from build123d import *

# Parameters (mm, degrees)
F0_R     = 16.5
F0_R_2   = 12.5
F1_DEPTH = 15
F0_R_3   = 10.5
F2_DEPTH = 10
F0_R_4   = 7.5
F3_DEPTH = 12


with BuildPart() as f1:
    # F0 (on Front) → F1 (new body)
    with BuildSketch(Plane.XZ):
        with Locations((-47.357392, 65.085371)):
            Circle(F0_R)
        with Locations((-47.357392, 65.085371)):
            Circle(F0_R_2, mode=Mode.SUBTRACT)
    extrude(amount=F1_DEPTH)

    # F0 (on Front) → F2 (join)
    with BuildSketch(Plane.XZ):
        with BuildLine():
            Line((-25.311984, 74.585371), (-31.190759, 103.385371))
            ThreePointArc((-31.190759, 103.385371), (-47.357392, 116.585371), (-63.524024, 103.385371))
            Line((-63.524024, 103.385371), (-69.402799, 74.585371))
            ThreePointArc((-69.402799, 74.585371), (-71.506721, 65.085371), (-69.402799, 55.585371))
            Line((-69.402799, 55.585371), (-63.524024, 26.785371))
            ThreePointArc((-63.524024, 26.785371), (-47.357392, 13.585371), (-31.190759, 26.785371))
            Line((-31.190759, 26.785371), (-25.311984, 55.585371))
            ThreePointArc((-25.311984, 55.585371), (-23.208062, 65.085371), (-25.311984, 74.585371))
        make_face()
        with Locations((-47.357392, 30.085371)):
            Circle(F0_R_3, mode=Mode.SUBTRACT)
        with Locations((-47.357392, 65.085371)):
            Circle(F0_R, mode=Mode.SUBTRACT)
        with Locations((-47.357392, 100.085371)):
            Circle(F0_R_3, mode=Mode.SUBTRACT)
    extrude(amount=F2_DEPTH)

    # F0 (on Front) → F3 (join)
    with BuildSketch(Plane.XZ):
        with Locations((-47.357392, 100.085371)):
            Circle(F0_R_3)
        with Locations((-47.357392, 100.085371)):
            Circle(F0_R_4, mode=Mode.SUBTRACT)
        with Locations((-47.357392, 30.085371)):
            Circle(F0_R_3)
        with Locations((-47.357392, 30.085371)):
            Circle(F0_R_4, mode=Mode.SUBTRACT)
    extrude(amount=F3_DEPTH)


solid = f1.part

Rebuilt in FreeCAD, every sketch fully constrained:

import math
import FreeCAD as App
import Part
import Sketcher

V = App.Vector
Q = App.Units.Quantity

doc = App.newDocument("Part")
body = doc.addObject("PartDesign::Body", "Body")

# Sketch on XZ plane
sketch1 = body.newObject("Sketcher::SketchObject", "Sketch")
sketch1.AttachmentSupport = (doc.getObject("XZ_Plane"), [""])
sketch1.MapMode = "FlatFace"
sketch1.addGeometry([
    Part.Circle(V(-47, 65, 0), V(0, 0, 1), 16),
    Part.Circle(V(-47, 65, 0), V(0, 0, 1), 12),
], False)
sketch1.addConstraint([
    Sketcher.Constraint("Coincident", 1, 3, 0, 3),
    Sketcher.Constraint("Diameter", 0, Q("33 mm")),
    Sketcher.Constraint("Diameter", 1, Q("25 mm")),
    Sketcher.Constraint("DistanceX", 0, 3, -1, 1, Q("47.357392 mm")),
    Sketcher.Constraint("DistanceY", -1, 1, 0, 3, Q("65.085371 mm")),
])
pad1 = body.newObject("PartDesign::Pad", "Pad")
pad1.Profile = sketch1
pad1.Length = 15

# Sketch on XZ plane
sketch2 = body.newObject("Sketcher::SketchObject", "Sketch001")
sketch2.AttachmentSupport = (doc.getObject("XZ_Plane"), [""])
sketch2.MapMode = "FlatFace"
sketch2.addGeometry([
    Part.LineSegment(V(-25, 75, 0), V(-31, 103, 0)),  # 0
    Part.ArcOfCircle(Part.Circle(V(-47, 100, 0), V(0, 0, 1), 17), math.radians(12), math.radians(168)),  # 1
    Part.LineSegment(V(-64, 103, 0), V(-69, 75, 0)),  # 2
    Part.ArcOfCircle(Part.Circle(V(-49, 65, 0), V(0, 0, 1), 22), math.radians(155), math.radians(205)),  # 3
    Part.LineSegment(V(-69, 56, 0), V(-64, 27, 0)),  # 4
    Part.ArcOfCircle(Part.Circle(V(-47, 30, 0), V(0, 0, 1), 17), math.radians(-168), math.radians(-12)),  # 5
    Part.LineSegment(V(-31, 27, 0), V(-25, 56, 0)),  # 6
    Part.ArcOfCircle(Part.Circle(V(-46, 65, 0), V(0, 0, 1), 22), math.radians(-25), math.radians(25)),  # 7
    Part.Circle(V(-47, 30, 0), V(0, 0, 1), 10),  # 8
    Part.Circle(V(-47, 65, 0), V(0, 0, 1), 16),  # 9
    Part.Circle(V(-47, 100, 0), V(0, 0, 1), 10),  # 10
], False)
sketch2.addConstraint([
    Sketcher.Constraint("Tangent", 0, 2, 1, 1),
    Sketcher.Constraint("Tangent", 1, 2, 2, 1),
    Sketcher.Constraint("Coincident", 2, 2, 3, 1),
    Sketcher.Constraint("Coincident", 3, 2, 4, 1),
    Sketcher.Constraint("Tangent", 4, 2, 5, 1),
    Sketcher.Constraint("Tangent", 5, 2, 6, 1),
    Sketcher.Constraint("Coincident", 6, 2, 7, 1),
    Sketcher.Constraint("Coincident", 7, 2, 0, 1),
    Sketcher.Constraint("Coincident", 8, 3, 5, 3),
    Sketcher.Constraint("Coincident", 10, 3, 1, 3),
    Sketcher.Constraint("Equal", 1, 5),
    Sketcher.Constraint("Equal", 3, 7),
    Sketcher.Constraint("Equal", 5, 9),
    Sketcher.Constraint("Equal", 8, 10),
    Sketcher.Constraint("Parallel", 0, 4),
    Sketcher.Constraint("Parallel", 2, 6),
    Sketcher.Constraint("Horizontal", 3, 3, 7, 3),
    Sketcher.Constraint("Horizontal", 7, 3, 9, 3),
    Sketcher.Constraint("Horizontal", 0, 2, 1, 2),
    Sketcher.Constraint("Horizontal", 3, 2, 6, 2),
    Sketcher.Constraint("Horizontal", 2, 2, 7, 2),
    Sketcher.Constraint("Vertical", 8, 3, 9, 3),
    Sketcher.Constraint("Vertical", 2, 2, 3, 2),
    Sketcher.Constraint("Diameter", 8, Q("21 mm")),
    Sketcher.Constraint("Diameter", 9, Q("33 mm")),
    Sketcher.Constraint("Radius", 3, Q("22.499999 mm")),
    Sketcher.Constraint("DistanceY", 3, 3, 1, 3, Q("35 mm")),
    Sketcher.Constraint("DistanceY", 3, 2, 2, 2, Q("19 mm")),
    Sketcher.Constraint("DistanceY", 1, 3, 0, 2, Q("3.3 mm")),
    Sketcher.Constraint("DistanceX", 2, 2, -1, 1, Q("69.402799 mm")),
    Sketcher.Constraint("DistanceY", -1, 1, 1, 3, Q("100.085371 mm")),
])
pad2 = body.newObject("PartDesign::Pad", "Pad001")
pad2.Profile = sketch2
pad2.Length = 10

# Sketch on XZ plane
sketch3 = body.newObject("Sketcher::SketchObject", "Sketch002")
sketch3.AttachmentSupport = (doc.getObject("XZ_Plane"), [""])
sketch3.MapMode = "FlatFace"
sketch3.addGeometry([
    Part.Circle(V(-47, 100, 0), V(0, 0, 1), 10),
    Part.Circle(V(-47, 100, 0), V(0, 0, 1), 8),
    Part.Circle(V(-47, 30, 0), V(0, 0, 1), 10),
    Part.Circle(V(-47, 30, 0), V(0, 0, 1), 8),
], False)
sketch3.addConstraint([
    Sketcher.Constraint("Coincident", 1, 3, 0, 3),
    Sketcher.Constraint("Coincident", 3, 3, 2, 3),
    Sketcher.Constraint("Equal", 0, 2),
    Sketcher.Constraint("Equal", 1, 3),
    Sketcher.Constraint("Vertical", 1, 3, 2, 3),
    Sketcher.Constraint("Diameter", 0, Q("21 mm")),
    Sketcher.Constraint("Diameter", 1, Q("15 mm")),
    Sketcher.Constraint("DistanceY", 2, 3, 0, 3, Q("70 mm")),
    Sketcher.Constraint("DistanceX", 0, 3, -1, 1, Q("47.357392 mm")),
    Sketcher.Constraint("DistanceY", -1, 1, 0, 3, Q("100.085371 mm")),
])
pad3 = body.newObject("PartDesign::Pad", "Pad002")
pad3.Profile = sketch3
pad3.Length = 12

doc.recompute()
